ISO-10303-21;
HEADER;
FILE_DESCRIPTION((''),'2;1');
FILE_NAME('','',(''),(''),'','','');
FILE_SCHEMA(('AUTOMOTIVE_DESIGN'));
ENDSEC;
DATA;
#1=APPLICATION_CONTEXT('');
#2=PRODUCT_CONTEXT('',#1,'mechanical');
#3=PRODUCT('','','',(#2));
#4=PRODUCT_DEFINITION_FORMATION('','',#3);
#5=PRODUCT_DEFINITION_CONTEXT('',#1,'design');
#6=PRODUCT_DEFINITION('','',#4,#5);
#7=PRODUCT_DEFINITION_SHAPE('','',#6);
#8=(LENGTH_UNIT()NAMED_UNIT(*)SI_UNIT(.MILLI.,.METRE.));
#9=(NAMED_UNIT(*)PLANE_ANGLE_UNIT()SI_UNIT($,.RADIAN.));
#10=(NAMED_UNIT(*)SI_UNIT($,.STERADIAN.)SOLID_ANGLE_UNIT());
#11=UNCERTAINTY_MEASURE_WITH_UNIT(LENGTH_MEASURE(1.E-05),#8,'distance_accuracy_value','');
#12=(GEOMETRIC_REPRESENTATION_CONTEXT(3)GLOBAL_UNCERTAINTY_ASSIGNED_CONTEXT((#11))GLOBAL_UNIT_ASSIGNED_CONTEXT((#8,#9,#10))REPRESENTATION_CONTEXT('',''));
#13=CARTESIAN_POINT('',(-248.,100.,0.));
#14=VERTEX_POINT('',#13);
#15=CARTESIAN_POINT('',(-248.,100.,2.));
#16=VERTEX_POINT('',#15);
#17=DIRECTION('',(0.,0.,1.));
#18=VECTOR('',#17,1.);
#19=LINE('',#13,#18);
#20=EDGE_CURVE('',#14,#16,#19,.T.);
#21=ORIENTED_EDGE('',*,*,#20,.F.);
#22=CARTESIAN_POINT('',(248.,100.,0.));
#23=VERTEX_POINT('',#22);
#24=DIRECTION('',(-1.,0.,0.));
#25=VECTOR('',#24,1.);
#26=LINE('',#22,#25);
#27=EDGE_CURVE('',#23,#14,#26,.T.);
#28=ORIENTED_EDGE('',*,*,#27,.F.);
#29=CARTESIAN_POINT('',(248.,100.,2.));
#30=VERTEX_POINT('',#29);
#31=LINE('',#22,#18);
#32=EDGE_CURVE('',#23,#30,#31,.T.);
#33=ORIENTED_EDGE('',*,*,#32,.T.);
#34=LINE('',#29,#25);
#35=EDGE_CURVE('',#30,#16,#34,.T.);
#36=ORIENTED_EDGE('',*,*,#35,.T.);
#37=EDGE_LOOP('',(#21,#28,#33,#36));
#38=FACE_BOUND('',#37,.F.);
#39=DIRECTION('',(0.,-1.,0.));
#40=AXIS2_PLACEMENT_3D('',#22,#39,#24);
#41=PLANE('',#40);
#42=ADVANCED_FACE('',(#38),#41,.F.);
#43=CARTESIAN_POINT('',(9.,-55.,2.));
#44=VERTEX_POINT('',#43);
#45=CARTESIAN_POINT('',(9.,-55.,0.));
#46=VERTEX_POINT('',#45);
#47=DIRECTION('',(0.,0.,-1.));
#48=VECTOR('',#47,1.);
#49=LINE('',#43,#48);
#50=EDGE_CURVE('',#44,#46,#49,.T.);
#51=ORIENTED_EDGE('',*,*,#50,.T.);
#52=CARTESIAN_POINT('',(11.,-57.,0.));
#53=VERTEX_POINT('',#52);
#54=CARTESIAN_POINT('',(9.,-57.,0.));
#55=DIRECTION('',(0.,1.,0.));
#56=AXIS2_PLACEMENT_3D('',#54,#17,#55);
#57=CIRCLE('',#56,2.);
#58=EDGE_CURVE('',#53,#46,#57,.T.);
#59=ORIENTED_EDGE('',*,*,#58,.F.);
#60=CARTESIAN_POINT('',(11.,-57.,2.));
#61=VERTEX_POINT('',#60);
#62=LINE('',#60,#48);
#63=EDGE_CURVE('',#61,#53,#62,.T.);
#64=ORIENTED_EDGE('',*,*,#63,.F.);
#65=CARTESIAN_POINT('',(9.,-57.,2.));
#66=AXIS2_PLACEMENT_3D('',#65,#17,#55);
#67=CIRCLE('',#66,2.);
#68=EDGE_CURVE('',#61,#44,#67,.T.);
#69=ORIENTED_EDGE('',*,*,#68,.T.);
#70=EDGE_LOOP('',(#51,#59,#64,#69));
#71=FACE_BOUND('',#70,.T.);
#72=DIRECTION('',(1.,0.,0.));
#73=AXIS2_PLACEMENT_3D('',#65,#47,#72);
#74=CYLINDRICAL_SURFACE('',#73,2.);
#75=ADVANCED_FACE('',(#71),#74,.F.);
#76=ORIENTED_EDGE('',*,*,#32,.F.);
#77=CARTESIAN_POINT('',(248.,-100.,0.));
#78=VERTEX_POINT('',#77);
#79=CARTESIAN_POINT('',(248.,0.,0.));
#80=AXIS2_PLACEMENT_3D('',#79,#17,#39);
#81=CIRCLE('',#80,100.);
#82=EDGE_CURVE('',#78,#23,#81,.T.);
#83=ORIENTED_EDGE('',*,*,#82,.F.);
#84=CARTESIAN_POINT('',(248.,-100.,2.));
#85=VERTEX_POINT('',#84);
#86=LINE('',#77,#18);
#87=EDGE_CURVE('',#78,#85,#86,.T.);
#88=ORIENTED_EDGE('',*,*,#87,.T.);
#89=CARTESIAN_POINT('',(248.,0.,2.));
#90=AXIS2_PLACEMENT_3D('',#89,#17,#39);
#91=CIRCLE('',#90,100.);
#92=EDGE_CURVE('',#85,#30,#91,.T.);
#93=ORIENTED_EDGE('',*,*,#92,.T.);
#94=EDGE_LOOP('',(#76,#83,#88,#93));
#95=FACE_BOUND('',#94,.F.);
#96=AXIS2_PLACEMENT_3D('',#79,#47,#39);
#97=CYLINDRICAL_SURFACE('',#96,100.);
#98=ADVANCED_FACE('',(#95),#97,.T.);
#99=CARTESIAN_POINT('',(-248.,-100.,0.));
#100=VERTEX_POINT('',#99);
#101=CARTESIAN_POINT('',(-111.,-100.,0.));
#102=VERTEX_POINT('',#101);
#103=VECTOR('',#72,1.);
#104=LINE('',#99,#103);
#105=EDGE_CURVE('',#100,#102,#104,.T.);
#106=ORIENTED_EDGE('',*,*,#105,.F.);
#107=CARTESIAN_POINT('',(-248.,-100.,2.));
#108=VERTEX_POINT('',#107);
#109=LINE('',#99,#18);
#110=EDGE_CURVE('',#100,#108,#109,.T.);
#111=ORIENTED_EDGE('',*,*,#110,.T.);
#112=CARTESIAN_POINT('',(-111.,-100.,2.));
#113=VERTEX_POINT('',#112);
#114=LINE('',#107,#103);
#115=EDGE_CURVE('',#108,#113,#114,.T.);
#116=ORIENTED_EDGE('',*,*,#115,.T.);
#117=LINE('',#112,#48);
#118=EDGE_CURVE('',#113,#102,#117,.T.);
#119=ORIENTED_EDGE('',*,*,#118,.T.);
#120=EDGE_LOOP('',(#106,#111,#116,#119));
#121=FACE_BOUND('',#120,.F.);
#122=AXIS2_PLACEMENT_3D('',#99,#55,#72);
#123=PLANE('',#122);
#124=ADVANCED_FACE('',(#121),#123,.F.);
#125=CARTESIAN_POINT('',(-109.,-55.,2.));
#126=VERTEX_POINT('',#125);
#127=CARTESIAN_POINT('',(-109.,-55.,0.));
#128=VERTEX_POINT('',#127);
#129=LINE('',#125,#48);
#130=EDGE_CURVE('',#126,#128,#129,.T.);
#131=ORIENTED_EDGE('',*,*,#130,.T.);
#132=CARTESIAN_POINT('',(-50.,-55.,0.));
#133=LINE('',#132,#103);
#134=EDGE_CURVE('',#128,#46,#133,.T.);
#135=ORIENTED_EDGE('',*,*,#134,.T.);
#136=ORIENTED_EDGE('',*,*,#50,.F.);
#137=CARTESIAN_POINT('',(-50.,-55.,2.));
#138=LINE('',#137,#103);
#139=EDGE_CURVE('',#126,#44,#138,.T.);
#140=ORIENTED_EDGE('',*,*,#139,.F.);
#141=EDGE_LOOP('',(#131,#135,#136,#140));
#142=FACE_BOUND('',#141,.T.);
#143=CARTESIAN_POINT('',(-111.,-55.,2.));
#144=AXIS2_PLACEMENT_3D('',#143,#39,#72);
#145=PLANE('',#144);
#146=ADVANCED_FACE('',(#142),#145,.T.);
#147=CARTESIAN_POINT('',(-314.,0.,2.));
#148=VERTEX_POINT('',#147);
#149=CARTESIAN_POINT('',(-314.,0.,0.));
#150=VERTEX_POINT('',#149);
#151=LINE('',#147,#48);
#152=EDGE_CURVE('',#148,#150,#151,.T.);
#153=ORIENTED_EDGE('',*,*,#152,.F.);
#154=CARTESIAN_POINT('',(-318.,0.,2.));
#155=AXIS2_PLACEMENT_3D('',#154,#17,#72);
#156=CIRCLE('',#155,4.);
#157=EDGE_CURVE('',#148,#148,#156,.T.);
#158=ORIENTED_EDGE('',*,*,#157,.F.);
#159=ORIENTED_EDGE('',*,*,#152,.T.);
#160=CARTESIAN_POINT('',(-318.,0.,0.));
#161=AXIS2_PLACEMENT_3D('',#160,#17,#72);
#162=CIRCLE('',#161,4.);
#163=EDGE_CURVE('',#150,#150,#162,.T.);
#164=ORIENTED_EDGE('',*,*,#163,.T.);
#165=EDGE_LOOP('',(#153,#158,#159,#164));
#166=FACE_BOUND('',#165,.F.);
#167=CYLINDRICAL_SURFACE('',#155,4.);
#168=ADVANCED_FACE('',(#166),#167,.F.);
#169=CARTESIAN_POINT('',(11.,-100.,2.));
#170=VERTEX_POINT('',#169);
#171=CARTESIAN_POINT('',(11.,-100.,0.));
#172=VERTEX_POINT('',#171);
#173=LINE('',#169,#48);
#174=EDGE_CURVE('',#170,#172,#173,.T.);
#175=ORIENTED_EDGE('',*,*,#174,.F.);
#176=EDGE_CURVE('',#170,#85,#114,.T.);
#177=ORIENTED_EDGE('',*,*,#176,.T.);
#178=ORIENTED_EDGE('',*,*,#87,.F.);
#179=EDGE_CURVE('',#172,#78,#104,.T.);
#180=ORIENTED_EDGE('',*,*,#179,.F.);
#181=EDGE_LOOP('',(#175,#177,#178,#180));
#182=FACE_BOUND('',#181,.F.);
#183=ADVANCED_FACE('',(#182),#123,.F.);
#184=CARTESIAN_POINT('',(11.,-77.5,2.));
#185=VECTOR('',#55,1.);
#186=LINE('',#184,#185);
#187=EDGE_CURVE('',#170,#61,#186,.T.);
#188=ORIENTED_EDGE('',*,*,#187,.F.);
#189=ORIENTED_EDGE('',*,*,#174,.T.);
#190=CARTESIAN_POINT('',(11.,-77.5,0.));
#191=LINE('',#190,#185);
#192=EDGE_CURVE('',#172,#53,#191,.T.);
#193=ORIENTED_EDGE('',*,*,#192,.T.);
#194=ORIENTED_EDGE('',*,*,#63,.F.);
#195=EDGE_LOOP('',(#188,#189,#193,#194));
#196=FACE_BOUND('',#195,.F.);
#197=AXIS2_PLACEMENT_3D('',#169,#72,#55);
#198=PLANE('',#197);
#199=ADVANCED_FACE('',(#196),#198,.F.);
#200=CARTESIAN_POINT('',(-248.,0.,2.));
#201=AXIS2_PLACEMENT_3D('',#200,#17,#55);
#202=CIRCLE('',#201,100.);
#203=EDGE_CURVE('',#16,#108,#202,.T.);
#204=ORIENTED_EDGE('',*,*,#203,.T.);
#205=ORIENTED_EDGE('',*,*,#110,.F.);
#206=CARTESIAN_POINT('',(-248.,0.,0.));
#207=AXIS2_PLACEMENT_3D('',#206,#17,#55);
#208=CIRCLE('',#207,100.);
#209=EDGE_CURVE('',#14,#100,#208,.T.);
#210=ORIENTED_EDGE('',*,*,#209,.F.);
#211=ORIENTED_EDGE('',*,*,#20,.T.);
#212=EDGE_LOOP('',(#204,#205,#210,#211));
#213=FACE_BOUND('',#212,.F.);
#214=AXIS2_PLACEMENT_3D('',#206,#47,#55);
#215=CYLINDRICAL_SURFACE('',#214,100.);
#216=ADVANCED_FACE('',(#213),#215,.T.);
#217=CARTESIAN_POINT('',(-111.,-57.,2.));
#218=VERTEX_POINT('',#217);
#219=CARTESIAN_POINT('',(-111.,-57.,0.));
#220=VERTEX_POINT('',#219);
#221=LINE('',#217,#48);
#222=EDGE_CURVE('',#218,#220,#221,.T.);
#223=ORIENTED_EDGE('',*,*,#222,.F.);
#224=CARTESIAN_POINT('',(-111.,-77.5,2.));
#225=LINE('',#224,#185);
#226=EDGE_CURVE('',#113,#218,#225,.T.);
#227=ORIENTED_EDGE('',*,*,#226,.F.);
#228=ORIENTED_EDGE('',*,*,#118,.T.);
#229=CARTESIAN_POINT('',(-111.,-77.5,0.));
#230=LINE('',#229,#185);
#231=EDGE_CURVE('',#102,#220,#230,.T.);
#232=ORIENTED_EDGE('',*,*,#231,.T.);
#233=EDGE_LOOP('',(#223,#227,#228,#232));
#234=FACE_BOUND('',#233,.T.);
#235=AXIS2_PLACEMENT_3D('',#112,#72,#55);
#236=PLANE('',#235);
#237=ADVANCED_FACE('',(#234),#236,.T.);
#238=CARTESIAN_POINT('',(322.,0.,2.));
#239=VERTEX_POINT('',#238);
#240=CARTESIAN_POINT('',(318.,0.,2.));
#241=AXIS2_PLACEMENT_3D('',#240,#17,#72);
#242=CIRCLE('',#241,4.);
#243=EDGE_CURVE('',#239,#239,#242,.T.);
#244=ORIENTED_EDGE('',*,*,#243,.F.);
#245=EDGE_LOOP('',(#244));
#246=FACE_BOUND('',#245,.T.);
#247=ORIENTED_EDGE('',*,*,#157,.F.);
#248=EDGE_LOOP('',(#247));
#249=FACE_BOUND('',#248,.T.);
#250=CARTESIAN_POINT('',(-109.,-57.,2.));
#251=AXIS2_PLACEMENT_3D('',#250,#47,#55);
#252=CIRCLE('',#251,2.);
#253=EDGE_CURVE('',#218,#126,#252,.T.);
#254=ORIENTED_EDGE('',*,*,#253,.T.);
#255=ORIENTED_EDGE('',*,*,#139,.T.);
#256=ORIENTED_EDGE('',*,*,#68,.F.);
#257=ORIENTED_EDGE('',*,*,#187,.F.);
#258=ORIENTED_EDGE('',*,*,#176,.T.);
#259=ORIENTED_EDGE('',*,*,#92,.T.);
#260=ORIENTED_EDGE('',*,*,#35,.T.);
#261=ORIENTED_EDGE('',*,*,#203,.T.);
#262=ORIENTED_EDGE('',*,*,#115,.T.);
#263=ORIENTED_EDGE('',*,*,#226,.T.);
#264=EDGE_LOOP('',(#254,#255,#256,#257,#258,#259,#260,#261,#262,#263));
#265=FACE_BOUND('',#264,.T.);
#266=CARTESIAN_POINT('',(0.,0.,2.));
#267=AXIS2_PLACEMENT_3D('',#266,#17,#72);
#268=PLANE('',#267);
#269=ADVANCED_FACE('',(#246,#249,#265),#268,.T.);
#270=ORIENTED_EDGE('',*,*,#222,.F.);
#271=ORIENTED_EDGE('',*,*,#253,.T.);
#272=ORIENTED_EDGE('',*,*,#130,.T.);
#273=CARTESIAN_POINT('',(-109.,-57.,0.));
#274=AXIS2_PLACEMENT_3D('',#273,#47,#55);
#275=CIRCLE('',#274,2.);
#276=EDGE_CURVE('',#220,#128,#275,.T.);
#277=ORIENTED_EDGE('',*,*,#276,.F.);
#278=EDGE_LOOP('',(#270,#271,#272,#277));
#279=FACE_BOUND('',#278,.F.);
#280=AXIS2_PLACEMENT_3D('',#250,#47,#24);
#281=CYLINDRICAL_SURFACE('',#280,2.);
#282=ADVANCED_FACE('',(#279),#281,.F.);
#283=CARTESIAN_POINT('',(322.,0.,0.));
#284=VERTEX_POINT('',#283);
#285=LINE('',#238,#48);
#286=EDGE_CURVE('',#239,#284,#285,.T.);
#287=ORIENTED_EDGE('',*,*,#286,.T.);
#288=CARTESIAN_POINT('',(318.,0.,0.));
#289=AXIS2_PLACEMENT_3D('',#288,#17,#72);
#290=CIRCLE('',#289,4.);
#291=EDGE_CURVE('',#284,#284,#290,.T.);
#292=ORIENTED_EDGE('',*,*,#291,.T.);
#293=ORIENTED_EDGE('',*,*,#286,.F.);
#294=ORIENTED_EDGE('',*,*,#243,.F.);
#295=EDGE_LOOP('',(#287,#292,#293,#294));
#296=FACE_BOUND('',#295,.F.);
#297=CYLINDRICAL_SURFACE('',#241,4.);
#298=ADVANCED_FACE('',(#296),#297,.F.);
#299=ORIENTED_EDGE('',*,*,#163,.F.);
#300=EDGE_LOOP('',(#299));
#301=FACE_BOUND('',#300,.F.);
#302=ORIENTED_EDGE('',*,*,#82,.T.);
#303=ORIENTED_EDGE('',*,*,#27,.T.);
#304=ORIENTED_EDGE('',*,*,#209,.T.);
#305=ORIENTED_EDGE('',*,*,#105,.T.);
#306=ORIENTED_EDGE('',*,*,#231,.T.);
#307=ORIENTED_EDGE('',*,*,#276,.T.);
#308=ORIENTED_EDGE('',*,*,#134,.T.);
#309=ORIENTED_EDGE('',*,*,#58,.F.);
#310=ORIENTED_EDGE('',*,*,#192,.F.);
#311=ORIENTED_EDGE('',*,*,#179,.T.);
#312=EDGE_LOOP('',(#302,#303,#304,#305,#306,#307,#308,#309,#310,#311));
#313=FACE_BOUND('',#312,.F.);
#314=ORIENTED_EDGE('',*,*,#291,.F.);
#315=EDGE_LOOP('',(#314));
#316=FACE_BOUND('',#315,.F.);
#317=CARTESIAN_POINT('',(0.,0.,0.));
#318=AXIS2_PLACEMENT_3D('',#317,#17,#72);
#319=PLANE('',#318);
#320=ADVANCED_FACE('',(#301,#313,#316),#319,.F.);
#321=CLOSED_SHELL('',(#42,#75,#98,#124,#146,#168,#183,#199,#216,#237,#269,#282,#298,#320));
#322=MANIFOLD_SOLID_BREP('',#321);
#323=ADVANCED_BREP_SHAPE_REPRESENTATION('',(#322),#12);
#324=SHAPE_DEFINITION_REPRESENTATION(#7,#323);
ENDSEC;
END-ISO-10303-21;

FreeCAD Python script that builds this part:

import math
import FreeCAD as App
import Part
import Sketcher

V = App.Vector


def edges_at(feature, points):
    """Names of the edges that pass closest to the given points."""
    edges = feature.Shape.Edges
    near = lambda p: min(range(len(edges)), key=lambda i: edges[i].distToShape(Part.Vertex(*p))[0])
    return sorted({f"Edge{near(p) + 1}" for p in points})


def add_polygon(sketch, points):
    """Adds a closed chain of lines whose ends are joined by coincident constraints."""
    first, n = sketch.GeometryCount, len(points)
    for a, b in zip(points, points[1:] + points[:1]):
        sketch.addGeometry(Part.LineSegment(App.Vector(*a, 0), App.Vector(*b, 0)), False)
    for i in range(n):
        sketch.addConstraint(Sketcher.Constraint("Coincident", first + i, 2, first + (i + 1) % n, 1))

doc = App.newDocument("Part")
params = doc.addObject("Spreadsheet::Sheet", "Params")
for row, (alias, value) in enumerate([
    ("sketch1_radius", "100 mm"),
    ("sketch1_width", "496 mm"),
    ("pad1_length", "2 mm"),
    ("sketch2_diameter", "8 mm"),
    ("sketch2_width", "122 mm"),
    ("sketch2_height", "45 mm"),
    ("fillet_radius", "2 mm"),
], start=1):
    params.set(f"A{row}", alias)
    params.set(f"B{row}", "=" + value)
    params.setAlias(f"B{row}", alias)

body = doc.addObject("PartDesign::Body", "Body")

sketch1 = body.newObject("Sketcher::SketchObject", "Sketch")
sketch1.AttachmentSupport = (doc.getObject("XY_Plane"), [""])
sketch1.MapMode = "FlatFace"
sketch1.addGeometry(Part.LineSegment(V(-248, -100, 0), V(248, -100, 0)), False)
sketch1.addGeometry(Part.ArcOfCircle(Part.Circle(V(248, 0, 0), V(0, 0, 1), 100), math.radians(-90), math.radians(90)), False)
sketch1.addGeometry(Part.LineSegment(V(248, 100, 0), V(-248, 100, 0)), False)
sketch1.addGeometry(Part.ArcOfCircle(Part.Circle(V(-248, 0, 0), V(0, 0, 1), 100), math.radians(90), math.radians(270)), False)
sketch1.addConstraint(Sketcher.Constraint("Tangent", 0, 2, 1, 1))
sketch1.addConstraint(Sketcher.Constraint("Tangent", 1, 2, 2, 1))
sketch1.addConstraint(Sketcher.Constraint("Tangent", 2, 2, 3, 1))
sketch1.addConstraint(Sketcher.Constraint("Tangent", 3, 2, 0, 1))
sketch1.addConstraint(Sketcher.Constraint("Horizontal", 0))
sketch1.addConstraint(Sketcher.Constraint("Horizontal", 2))
sketch1.addConstraint(Sketcher.Constraint("Symmetric", 1, 3, 3, 3, -1, 1))
sketch1.addConstraint(Sketcher.Constraint("Radius", 1, 100.0))
sketch1.addConstraint(Sketcher.Constraint("DistanceX", 0, 1, 0, 2, 496.0))
sketch1.setExpression("Constraints[7]", "Params.sketch1_radius")
sketch1.setExpression("Constraints[8]", "Params.sketch1_width")
pad1 = body.newObject("PartDesign::Pad", "Pad")
pad1.Profile = sketch1
pad1.setExpression("Length", "Params.pad1_length")

sketch2 = body.newObject("Sketcher::SketchObject", "Sketch001")
sketch2.AttachmentSupport = (doc.getObject("XY_Plane"), [""])
sketch2.MapMode = "FlatFace"
sketch2.AttachmentOffset = App.Placement(V(0, 0, 2), App.Rotation())
sketch2.addGeometry(Part.Circle(V(318, 0, 0), V(0, 0, 1), 4), False)
sketch2.addGeometry(Part.Circle(V(-318, 0, 0), V(0, 0, 1), 4), False)
add_polygon(sketch2, [(-111, -55), (-111, -100), (11, -100), (11, -55)])
sketch2.addConstraint(Sketcher.Constraint("Vertical", 2))
sketch2.addConstraint(Sketcher.Constraint("Horizontal", 3))
sketch2.addConstraint(Sketcher.Constraint("Vertical", 4))
sketch2.addConstraint(Sketcher.Constraint("Horizontal", 5))
sketch2.addConstraint(Sketcher.Constraint("Equal", 0, 1))
sketch2.addConstraint(Sketcher.Constraint("Symmetric", 0, 3, 1, 3, -1, 1))
sketch2.addConstraint(Sketcher.Constraint("PointOnObject", 0, 3, -1))
sketch2.addConstraint(Sketcher.Constraint("Diameter", 0, 8.0))
sketch2.addConstraint(Sketcher.Constraint("DistanceX", 3, 1, 3, 2, 122.0))
sketch2.addConstraint(Sketcher.Constraint("DistanceY", 2, 2, 2, 1, 45.0))
sketch2.addConstraint(Sketcher.Constraint("DistanceX", -1, 1, 0, 3, 318.0))
sketch2.addConstraint(Sketcher.Constraint("DistanceX", 2, 2, -1, 1, 111.0))
sketch2.addConstraint(Sketcher.Constraint("DistanceY", 2, 2, -1, 1, 100.0))
sketch2.setExpression("Constraints[11]", "Params.sketch2_diameter")
sketch2.setExpression("Constraints[12]", "Params.sketch2_width")
sketch2.setExpression("Constraints[13]", "Params.sketch2_height")
pocket1 = body.newObject("PartDesign::Pocket", "Pocket")
pocket1.Profile = sketch2
pocket1.Type = "ThroughAll"
doc.recompute()

fillet = body.newObject("PartDesign::Fillet", "Fillet")
fillet.Base = (pocket1, edges_at(pocket1, [(11, -55, 1), (-111, -55, 1)]))
fillet.setExpression("Radius", "Params.fillet_radius")

doc.recompute()
